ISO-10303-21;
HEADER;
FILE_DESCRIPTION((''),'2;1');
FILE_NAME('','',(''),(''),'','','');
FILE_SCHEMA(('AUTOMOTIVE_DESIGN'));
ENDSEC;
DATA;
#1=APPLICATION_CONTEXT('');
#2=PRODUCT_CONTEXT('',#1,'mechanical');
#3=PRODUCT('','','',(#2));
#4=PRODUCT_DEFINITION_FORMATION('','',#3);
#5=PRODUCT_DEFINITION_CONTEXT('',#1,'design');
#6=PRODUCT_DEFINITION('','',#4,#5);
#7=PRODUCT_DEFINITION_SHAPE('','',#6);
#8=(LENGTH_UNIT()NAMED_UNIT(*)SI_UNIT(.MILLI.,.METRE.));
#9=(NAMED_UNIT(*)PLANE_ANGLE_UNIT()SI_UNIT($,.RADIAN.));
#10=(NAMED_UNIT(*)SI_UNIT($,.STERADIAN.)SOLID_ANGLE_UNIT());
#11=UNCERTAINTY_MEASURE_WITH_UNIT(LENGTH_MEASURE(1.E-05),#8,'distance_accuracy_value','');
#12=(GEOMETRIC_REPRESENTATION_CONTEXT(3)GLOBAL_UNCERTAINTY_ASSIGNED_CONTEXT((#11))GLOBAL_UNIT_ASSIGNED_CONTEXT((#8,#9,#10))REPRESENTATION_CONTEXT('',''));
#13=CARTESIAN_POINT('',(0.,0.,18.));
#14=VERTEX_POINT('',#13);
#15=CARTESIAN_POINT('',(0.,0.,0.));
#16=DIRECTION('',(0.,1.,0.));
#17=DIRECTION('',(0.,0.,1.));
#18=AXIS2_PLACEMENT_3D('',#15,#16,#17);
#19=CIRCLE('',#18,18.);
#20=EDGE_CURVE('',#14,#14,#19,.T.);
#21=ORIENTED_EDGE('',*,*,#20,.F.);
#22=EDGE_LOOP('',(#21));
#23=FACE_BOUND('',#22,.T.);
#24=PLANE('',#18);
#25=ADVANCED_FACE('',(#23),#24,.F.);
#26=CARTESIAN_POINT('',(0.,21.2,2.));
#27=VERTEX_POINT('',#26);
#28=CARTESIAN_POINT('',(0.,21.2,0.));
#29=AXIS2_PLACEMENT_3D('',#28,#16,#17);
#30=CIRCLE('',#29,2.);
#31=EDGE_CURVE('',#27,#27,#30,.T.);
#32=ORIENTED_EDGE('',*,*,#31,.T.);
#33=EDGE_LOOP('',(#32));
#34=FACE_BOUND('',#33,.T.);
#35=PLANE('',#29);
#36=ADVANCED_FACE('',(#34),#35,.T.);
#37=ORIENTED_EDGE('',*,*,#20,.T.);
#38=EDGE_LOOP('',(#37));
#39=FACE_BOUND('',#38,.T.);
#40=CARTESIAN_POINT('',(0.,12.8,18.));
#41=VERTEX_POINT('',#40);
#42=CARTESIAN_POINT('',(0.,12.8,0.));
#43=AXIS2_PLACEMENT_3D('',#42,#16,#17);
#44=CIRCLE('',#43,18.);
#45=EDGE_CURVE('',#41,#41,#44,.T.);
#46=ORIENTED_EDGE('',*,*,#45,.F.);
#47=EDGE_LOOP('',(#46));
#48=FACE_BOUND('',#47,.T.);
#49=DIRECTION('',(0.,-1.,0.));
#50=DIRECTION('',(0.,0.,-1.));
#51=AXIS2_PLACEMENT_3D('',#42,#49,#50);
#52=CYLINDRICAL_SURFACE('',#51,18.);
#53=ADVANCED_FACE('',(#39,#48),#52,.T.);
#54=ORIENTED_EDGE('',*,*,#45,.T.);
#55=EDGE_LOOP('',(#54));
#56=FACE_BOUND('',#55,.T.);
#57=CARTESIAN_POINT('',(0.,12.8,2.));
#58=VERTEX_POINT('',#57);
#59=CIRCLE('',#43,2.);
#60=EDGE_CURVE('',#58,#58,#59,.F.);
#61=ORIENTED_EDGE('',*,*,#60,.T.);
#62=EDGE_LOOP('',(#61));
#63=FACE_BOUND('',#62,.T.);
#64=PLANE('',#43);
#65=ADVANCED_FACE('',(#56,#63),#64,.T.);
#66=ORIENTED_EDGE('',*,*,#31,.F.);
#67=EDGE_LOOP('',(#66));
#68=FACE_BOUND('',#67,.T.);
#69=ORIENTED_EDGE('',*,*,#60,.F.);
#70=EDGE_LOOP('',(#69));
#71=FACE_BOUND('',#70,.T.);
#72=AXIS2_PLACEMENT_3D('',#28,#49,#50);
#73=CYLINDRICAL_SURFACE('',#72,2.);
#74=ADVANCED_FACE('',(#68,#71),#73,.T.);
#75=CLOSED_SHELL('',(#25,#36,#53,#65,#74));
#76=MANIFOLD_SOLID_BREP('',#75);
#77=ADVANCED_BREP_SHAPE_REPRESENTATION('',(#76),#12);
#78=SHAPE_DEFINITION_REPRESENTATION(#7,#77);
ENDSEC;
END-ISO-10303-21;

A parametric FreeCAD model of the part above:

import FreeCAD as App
import Part
import Sketcher

doc = App.newDocument("Part")
body = doc.addObject("PartDesign::Body", "Body")

sketch1 = body.newObject("Sketcher::SketchObject", "Sketch")
sketch1.AttachmentSupport = (doc.getObject("XZ_Plane"), [""])
sketch1.MapMode = "FlatFace"
sketch1.addGeometry(Part.Circle(App.Vector(0, 0, 0), App.Vector(0, 0, 1), 18), False)
sketch1.addConstraint([
    Sketcher.Constraint("Coincident", 0, 3, -1, 1),
    Sketcher.Constraint("Diameter", 0, 36.0),
])
pad1 = body.newObject("PartDesign::Pad", "Pad")
pad1.Profile = sketch1
pad1.Length = 12.8
pad1.Reversed = True

sketch2 = body.newObject("Sketcher::SketchObject", "Sketch001")
sketch2.AttachmentSupport = (doc.getObject("XZ_Plane"), [""])
sketch2.MapMode = "FlatFace"
sketch2.addGeometry(Part.Circle(App.Vector(0, 0, 0), App.Vector(0, 0, 1), 2), False)
sketch2.addConstraint([
    Sketcher.Constraint("Coincident", 0, 3, -1, 1),
    Sketcher.Constraint("Diameter", 0, 4.0),
])
pad2 = body.newObject("PartDesign::Pad", "Pad001")
pad2.Profile = sketch2
pad2.Length = 21.2
pad2.Reversed = True

doc.recompute()
